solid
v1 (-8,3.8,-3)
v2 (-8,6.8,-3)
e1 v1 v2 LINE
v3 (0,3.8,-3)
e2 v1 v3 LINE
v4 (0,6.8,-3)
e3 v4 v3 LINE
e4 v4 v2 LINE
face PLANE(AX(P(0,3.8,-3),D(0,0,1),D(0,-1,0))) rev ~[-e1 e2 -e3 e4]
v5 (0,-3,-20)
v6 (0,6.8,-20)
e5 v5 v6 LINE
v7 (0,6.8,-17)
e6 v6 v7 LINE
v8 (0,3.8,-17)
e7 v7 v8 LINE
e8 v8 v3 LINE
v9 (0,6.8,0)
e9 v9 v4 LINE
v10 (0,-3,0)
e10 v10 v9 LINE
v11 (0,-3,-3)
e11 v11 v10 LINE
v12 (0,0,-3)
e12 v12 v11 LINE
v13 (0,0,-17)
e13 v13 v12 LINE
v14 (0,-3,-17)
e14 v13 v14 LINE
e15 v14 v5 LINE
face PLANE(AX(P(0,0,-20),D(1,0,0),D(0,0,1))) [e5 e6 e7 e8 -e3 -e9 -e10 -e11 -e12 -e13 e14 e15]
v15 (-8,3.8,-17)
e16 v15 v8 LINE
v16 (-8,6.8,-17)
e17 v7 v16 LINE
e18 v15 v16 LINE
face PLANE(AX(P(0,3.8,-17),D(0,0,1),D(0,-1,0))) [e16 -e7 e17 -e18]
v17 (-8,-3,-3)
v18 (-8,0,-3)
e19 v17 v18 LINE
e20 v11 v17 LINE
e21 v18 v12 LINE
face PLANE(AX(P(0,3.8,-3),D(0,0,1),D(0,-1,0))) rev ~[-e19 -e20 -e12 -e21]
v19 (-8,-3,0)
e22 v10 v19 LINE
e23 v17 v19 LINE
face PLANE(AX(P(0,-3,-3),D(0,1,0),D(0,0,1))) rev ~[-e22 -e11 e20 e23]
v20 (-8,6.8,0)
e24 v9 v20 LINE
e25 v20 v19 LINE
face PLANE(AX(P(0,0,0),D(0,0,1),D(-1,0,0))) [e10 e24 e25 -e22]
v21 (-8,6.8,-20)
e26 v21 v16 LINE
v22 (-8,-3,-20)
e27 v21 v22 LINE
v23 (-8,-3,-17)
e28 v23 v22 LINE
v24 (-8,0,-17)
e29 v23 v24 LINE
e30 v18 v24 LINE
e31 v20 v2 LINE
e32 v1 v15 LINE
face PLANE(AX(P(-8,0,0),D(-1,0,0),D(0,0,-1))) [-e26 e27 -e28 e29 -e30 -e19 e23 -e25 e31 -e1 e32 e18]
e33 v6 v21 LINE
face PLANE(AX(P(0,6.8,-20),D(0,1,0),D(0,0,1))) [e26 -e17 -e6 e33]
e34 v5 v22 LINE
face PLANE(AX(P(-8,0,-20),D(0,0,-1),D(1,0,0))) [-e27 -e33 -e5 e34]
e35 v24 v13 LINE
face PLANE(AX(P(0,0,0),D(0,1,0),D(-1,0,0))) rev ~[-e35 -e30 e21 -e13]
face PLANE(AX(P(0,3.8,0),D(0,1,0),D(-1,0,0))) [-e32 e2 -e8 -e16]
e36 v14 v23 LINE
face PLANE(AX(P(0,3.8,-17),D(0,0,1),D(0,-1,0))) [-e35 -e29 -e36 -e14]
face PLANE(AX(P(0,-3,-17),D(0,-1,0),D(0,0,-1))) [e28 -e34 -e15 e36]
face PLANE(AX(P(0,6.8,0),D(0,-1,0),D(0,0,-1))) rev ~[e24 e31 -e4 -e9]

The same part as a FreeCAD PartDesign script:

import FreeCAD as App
import Part
import Sketcher


def add_polygon(sketch, points):
    """Adds a closed chain of lines whose ends are joined by coincident constraints."""
    first, n = sketch.GeometryCount, len(points)
    for a, b in zip(points, points[1:] + points[:1]):
        sketch.addGeometry(Part.LineSegment(App.Vector(*a, 0), App.Vector(*b, 0)), False)
    for i in range(n):
        sketch.addConstraint(Sketcher.Constraint("Coincident", first + i, 2, first + (i + 1) % n, 1))

doc = App.newDocument("Part")
body = doc.addObject("PartDesign::Body", "Body")

sketch1 = body.newObject("Sketcher::SketchObject", "Sketch")
sketch1.AttachmentSupport = (doc.getObject("XZ_Plane"), [""])
sketch1.MapMode = "FlatFace"
add_polygon(sketch1, [(-8, 0), (0, 0), (0, -20), (-8, -20)])
sketch1.addConstraint(Sketcher.Constraint("Horizontal", 0))
sketch1.addConstraint(Sketcher.Constraint("Vertical", 1))
sketch1.addConstraint(Sketcher.Constraint("Horizontal", 2))
sketch1.addConstraint(Sketcher.Constraint("Vertical", 3))
sketch1.addConstraint(Sketcher.Constraint("Coincident", 0, 2, -1, 1))
sketch1.addConstraint(Sketcher.Constraint("DistanceX", 0, 1, 0, 2, 8.0))
sketch1.addConstraint(Sketcher.Constraint("DistanceY", 1, 2, 1, 1, 20.0))
pad1 = body.newObject("PartDesign::Pad", "Pad")
pad1.Profile = sketch1
pad1.Length = 3.8
pad1.Reversed = True

sketch2 = body.newObject("Sketcher::SketchObject", "Sketch001")
sketch2.AttachmentSupport = (doc.getObject("YZ_Plane"), [""])
sketch2.MapMode = "FlatFace"
add_polygon(sketch2, [(-3, -20), (6.8, -20), (6.8, -17), (-3, -17)])
add_polygon(sketch2, [(-3, -3), (6.8, -3), (6.8, 0), (-3, 0)])
sketch2.addConstraint(Sketcher.Constraint("Horizontal", 0))
sketch2.addConstraint(Sketcher.Constraint("Vertical", 1))
sketch2.addConstraint(Sketcher.Constraint("Horizontal", 2))
sketch2.addConstraint(Sketcher.Constraint("Vertical", 3))
sketch2.addConstraint(Sketcher.Constraint("Horizontal", 4))
sketch2.addConstraint(Sketcher.Constraint("Vertical", 5))
sketch2.addConstraint(Sketcher.Constraint("Horizontal", 6))
sketch2.addConstraint(Sketcher.Constraint("Vertical", 7))
sketch2.addConstraint(Sketcher.Constraint("PointOnObject", 5, 2, -1))
sketch2.addConstraint(Sketcher.Constraint("Vertical", 1, 2, 4, 2))
sketch2.addConstraint(Sketcher.Constraint("Vertical", 3, 2, 6, 2))
sketch2.addConstraint(Sketcher.Constraint("Equal", 3, 5))
sketch2.addConstraint(Sketcher.Constraint("DistanceY", 1, 1, 1, 2, 3.0))
sketch2.addConstraint(Sketcher.Constraint("DistanceX", 0, 1, 0, 2, 9.8))
sketch2.addConstraint(Sketcher.Constraint("DistanceX", 2, 2, -1, 1, 3.0))
sketch2.addConstraint(Sketcher.Constraint("DistanceY", 0, 2, -1, 1, 20.0))
pad2 = body.newObject("PartDesign::Pad", "Pad001")
pad2.Profile = sketch2
pad2.Length = 8
pad2.Reversed = True

doc.recompute()
